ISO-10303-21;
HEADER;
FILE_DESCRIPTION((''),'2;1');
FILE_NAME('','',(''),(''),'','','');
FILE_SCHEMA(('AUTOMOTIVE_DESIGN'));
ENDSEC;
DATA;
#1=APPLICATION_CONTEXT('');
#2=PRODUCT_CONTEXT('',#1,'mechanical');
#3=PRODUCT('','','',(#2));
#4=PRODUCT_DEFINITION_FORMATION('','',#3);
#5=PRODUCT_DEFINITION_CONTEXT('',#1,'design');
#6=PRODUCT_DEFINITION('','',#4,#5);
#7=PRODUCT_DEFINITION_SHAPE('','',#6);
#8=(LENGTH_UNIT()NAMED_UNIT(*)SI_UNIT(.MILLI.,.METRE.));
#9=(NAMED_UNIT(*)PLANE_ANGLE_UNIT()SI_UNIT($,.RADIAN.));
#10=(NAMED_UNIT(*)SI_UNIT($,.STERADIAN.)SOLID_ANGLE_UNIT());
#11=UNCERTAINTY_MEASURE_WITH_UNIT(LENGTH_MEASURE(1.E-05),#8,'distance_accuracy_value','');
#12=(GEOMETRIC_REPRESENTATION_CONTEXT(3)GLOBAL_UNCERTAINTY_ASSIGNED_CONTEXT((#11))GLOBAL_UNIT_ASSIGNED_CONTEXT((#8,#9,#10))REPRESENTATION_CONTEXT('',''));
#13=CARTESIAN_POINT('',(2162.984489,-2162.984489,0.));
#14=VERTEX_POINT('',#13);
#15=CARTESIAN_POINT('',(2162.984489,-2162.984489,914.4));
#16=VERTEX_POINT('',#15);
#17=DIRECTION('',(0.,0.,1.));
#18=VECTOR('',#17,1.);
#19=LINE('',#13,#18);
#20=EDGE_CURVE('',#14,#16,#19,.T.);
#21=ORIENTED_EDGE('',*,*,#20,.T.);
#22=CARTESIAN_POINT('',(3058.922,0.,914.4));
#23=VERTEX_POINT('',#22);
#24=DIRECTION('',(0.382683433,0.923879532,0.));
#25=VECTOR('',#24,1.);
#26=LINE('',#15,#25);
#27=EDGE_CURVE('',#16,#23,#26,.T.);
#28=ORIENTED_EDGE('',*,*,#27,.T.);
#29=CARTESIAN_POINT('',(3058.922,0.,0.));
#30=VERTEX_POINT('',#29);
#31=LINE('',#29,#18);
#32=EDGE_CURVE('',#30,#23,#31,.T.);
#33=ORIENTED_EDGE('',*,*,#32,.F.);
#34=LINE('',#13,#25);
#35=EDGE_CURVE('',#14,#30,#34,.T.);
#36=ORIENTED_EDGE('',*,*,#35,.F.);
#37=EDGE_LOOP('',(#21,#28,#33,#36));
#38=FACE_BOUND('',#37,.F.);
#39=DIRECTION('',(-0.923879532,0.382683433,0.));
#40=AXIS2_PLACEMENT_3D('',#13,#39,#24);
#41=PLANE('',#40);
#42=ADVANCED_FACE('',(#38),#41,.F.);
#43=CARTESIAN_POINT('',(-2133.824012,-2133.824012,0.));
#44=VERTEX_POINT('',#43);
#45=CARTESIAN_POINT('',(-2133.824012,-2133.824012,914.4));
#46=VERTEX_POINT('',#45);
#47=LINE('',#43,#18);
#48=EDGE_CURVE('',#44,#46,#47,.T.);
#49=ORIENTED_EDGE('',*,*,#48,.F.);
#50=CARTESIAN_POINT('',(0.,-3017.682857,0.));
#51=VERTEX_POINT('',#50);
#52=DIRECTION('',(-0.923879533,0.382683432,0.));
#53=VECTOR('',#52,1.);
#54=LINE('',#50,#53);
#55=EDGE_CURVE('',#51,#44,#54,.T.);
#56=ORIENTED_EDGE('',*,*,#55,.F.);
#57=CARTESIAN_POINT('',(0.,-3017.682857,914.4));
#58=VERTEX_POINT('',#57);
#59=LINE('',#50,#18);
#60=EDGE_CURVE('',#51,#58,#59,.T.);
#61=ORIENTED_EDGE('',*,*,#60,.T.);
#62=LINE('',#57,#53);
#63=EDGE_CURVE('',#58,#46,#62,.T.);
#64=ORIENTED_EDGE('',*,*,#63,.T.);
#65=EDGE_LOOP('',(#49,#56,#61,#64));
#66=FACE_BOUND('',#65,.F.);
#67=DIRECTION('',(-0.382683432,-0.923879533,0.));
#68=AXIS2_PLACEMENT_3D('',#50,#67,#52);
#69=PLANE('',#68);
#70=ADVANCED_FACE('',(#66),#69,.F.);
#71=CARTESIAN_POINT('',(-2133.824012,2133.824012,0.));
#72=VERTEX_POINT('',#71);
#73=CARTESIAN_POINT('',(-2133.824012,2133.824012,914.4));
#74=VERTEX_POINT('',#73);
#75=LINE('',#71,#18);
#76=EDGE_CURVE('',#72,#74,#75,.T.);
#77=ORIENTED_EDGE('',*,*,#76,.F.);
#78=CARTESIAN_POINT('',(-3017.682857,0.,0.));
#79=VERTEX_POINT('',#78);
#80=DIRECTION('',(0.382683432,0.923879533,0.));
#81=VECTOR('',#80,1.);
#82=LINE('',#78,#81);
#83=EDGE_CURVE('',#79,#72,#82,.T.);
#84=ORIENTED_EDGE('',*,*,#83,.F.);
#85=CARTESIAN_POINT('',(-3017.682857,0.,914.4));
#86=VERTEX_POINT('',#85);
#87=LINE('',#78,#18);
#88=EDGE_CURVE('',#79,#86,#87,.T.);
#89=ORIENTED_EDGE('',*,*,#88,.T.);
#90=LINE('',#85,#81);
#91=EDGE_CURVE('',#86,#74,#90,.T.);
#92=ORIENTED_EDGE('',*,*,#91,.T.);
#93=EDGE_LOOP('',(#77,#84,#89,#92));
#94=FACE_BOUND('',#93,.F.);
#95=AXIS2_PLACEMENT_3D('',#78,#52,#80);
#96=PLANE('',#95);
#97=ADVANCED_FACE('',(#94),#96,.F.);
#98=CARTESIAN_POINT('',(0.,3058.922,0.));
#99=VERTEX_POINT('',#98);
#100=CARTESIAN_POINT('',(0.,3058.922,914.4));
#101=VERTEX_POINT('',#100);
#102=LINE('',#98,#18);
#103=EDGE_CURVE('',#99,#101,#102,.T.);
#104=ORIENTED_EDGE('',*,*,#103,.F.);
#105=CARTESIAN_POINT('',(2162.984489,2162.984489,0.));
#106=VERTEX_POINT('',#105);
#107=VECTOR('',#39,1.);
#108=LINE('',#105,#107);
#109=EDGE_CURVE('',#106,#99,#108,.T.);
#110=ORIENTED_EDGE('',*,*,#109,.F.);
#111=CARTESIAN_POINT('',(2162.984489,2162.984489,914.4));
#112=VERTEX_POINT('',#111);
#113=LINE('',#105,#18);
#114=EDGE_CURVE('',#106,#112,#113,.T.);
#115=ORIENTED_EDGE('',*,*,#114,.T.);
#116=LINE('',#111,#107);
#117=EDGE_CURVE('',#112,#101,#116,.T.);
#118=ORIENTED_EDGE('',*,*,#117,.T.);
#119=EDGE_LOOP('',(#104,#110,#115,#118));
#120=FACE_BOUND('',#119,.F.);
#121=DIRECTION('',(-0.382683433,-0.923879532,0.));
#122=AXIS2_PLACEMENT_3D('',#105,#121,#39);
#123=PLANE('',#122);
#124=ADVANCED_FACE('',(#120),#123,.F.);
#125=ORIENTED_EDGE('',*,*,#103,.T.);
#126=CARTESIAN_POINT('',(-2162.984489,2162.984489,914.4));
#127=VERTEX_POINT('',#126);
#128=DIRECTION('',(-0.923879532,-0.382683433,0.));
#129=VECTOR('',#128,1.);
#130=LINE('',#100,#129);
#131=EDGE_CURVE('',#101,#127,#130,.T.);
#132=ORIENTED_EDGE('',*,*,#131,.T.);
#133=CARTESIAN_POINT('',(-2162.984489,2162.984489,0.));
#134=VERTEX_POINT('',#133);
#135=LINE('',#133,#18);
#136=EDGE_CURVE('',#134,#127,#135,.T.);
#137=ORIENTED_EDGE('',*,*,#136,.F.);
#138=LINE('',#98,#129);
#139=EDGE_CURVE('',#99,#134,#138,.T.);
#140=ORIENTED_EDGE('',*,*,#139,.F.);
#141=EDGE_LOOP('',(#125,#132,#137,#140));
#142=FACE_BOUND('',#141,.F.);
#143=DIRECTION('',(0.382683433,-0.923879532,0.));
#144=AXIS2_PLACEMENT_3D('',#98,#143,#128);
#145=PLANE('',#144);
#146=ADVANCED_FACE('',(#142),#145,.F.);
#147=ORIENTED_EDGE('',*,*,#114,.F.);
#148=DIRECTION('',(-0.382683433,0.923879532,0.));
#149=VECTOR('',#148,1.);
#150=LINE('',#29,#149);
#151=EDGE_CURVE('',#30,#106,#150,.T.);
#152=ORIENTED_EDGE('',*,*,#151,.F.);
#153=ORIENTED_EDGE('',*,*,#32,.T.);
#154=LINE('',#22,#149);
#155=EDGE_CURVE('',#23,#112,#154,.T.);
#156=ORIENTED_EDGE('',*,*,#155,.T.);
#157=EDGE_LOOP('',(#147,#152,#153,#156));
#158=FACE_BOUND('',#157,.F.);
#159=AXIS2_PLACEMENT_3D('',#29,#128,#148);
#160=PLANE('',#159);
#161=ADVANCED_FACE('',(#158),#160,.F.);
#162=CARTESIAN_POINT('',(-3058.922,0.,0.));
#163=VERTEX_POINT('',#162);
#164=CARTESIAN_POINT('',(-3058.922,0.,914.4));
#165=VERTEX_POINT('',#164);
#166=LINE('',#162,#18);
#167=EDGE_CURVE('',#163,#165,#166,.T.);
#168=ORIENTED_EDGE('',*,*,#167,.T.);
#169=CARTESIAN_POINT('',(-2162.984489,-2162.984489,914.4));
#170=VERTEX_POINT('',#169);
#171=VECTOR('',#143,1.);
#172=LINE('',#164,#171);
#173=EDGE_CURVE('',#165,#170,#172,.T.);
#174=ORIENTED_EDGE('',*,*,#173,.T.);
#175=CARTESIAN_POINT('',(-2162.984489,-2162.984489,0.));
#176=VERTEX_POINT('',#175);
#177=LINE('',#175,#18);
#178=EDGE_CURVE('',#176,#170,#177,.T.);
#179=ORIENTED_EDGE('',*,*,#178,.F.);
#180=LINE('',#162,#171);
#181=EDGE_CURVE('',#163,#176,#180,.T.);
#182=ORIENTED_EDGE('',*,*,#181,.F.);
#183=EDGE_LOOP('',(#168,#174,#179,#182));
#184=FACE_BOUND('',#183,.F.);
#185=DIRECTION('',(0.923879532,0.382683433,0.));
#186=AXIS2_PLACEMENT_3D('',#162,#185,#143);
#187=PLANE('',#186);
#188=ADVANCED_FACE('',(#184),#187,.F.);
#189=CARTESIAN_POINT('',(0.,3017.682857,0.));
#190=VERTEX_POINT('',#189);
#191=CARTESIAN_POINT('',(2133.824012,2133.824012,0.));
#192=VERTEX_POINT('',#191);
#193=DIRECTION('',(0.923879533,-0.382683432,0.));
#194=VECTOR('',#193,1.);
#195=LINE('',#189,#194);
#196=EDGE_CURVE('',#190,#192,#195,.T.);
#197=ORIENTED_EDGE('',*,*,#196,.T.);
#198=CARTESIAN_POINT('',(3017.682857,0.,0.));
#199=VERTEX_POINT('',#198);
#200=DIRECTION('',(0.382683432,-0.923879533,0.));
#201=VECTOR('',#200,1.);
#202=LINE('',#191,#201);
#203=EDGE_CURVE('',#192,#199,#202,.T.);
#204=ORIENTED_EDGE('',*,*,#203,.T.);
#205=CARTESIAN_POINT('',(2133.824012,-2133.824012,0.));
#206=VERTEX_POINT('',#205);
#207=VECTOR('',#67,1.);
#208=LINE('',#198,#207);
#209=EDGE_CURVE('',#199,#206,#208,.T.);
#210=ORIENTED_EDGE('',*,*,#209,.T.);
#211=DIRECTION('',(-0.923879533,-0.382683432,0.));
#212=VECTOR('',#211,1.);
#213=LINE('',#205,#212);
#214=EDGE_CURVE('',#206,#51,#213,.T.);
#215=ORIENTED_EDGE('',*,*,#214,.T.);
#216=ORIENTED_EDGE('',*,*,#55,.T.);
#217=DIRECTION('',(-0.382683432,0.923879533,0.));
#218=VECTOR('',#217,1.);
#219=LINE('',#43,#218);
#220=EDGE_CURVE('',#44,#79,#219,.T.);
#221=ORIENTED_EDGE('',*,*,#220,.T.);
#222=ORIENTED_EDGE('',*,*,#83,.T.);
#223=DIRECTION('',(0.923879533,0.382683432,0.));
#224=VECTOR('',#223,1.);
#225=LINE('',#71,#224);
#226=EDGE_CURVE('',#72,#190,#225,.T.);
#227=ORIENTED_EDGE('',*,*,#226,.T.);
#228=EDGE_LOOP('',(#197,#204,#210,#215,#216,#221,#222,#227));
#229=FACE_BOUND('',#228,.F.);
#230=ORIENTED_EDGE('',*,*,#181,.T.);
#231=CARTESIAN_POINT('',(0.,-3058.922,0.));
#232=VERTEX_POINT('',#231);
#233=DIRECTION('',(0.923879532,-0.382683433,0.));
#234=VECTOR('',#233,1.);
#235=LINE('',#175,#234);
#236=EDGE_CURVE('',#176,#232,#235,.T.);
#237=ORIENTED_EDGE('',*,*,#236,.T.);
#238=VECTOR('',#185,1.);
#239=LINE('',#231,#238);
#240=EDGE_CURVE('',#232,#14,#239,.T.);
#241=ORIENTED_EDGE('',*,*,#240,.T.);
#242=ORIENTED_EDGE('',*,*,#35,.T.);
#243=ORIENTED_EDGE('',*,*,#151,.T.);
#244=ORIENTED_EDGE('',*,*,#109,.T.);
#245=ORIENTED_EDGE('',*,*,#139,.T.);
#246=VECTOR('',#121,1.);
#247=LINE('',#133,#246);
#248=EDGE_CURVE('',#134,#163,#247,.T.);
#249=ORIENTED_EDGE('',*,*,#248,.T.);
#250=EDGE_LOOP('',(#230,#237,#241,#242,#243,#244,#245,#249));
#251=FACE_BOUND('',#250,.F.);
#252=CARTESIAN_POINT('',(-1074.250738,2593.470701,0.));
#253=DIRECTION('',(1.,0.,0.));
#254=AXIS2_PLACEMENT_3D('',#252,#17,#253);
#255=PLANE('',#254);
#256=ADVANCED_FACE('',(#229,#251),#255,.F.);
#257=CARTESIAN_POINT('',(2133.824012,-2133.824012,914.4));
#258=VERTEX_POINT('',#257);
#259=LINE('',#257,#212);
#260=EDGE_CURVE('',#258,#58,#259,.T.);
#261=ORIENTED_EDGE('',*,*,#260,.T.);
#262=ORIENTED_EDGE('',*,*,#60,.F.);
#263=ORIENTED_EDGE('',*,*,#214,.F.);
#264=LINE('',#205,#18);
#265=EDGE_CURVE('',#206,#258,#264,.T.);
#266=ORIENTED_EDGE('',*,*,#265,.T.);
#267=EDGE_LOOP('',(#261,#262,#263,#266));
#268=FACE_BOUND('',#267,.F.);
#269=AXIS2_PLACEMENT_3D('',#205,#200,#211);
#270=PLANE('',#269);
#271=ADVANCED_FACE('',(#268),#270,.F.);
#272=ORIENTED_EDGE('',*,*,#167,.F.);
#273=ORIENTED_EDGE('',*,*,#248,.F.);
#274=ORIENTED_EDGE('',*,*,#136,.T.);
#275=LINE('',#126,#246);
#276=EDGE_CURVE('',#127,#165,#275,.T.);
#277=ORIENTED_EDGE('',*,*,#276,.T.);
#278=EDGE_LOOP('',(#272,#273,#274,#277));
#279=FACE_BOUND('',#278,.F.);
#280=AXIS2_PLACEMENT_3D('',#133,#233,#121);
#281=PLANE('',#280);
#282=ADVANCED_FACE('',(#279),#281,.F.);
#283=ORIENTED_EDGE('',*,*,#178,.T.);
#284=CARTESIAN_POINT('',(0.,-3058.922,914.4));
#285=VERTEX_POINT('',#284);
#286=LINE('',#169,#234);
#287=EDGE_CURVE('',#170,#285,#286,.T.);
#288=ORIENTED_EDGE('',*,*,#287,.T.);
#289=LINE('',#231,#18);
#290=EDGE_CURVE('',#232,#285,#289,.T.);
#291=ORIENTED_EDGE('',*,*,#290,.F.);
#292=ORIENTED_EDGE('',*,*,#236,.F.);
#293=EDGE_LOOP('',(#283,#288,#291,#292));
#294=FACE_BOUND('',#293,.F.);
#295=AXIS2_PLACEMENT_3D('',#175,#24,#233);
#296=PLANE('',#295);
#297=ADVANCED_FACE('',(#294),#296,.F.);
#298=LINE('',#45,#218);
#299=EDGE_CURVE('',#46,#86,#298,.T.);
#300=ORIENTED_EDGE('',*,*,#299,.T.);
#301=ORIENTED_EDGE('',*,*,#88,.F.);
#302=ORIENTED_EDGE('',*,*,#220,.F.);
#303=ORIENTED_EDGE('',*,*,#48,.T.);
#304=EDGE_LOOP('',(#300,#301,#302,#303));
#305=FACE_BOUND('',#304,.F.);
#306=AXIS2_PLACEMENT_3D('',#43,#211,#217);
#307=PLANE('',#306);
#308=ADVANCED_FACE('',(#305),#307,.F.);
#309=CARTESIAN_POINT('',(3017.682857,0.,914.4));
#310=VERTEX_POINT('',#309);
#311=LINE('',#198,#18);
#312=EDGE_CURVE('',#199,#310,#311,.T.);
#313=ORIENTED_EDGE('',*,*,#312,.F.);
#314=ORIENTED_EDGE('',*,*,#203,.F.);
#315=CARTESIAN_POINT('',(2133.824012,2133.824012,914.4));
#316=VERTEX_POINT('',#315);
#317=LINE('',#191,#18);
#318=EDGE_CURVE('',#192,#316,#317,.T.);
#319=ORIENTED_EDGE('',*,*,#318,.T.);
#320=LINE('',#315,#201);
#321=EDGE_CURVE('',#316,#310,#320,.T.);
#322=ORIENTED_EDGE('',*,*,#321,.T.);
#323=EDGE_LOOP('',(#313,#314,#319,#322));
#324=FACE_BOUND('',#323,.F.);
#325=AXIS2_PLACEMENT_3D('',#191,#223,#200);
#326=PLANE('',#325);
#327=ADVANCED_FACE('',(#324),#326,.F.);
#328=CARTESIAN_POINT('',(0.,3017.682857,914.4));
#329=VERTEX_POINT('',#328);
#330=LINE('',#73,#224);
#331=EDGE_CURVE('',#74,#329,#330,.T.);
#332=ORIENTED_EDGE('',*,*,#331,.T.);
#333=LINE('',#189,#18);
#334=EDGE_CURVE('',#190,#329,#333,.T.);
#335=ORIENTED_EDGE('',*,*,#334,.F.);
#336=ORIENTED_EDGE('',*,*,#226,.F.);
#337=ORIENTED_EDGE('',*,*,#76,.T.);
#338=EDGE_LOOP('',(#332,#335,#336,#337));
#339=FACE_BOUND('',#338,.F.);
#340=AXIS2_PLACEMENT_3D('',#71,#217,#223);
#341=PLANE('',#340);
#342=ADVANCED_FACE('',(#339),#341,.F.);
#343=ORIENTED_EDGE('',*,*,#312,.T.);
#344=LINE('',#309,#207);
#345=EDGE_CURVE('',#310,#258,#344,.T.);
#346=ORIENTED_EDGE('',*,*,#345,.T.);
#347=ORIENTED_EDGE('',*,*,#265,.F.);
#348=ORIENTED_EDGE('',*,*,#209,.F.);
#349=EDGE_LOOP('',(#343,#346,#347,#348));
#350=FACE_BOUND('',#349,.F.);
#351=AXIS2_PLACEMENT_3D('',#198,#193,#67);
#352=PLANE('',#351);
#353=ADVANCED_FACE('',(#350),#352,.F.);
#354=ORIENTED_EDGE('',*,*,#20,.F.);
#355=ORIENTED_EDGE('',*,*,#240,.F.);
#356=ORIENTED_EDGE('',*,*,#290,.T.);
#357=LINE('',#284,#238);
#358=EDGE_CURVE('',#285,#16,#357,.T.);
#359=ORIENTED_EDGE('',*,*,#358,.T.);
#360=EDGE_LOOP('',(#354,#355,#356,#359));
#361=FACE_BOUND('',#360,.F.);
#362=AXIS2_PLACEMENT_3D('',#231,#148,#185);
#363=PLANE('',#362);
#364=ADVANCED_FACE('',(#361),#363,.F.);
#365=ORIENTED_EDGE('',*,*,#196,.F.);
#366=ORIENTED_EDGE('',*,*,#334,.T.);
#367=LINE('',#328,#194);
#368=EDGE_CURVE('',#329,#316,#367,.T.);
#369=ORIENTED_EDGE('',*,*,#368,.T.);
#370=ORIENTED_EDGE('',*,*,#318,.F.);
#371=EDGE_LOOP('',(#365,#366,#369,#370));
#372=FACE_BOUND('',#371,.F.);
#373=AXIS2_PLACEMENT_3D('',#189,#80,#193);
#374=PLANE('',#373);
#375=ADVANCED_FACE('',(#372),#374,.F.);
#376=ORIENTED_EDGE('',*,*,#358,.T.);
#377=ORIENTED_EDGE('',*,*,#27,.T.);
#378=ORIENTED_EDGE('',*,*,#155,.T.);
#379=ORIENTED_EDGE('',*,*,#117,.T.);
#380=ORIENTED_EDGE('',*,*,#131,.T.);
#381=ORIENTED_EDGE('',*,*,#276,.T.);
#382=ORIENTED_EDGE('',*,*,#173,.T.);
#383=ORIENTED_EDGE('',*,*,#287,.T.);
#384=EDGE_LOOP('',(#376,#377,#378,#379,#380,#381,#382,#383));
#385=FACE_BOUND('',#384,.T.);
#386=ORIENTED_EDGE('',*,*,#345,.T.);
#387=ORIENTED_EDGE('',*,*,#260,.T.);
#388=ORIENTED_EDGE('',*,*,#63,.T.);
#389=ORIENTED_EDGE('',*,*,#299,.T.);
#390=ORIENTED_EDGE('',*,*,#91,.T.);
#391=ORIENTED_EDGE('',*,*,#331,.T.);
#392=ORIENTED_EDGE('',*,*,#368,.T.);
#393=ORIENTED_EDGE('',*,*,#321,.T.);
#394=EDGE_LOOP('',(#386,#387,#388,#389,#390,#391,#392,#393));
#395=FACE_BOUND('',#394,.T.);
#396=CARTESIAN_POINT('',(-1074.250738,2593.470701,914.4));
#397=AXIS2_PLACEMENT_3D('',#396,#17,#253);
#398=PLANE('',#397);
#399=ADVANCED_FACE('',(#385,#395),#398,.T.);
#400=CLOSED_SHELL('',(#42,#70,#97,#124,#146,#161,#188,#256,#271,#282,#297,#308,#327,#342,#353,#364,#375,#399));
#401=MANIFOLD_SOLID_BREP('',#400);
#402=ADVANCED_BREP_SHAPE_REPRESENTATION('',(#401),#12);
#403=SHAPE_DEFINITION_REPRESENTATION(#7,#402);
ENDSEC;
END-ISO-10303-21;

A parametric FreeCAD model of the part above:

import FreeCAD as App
import Part
import Sketcher

V = App.Vector
Q = App.Units.Quantity


def add_polygon(sketch, points):
    """Adds a closed chain of lines whose ends are joined by coincident constraints."""
    first, n = sketch.GeometryCount, len(points)
    for a, b in zip(points, points[1:] + points[:1]):
        sketch.addGeometry(Part.LineSegment(App.Vector(*a, 0), App.Vector(*b, 0)), False)
    for i in range(n):
        sketch.addConstraint(Sketcher.Constraint("Coincident", first + i, 2, first + (i + 1) % n, 1))

doc = App.newDocument("Part")
body = doc.addObject("PartDesign::Body", "Body")

sketch1 = body.newObject("Sketcher::SketchObject", "Sketch")
sketch1.AttachmentSupport = (doc.getObject("XY_Plane"), [""])
sketch1.MapMode = "FlatFace"
add_polygon(sketch1, [(0, 3059), (-2163, 2163), (-3059, 0), (-2163, -2163), (0, -3059), (2163, -2163), (3059, 0), (2163, 2163)])
add_polygon(sketch1, [(-2134, 2134), (0, 3018), (2134, 2134), (3018, 0), (2134, -2134), (0, -3018), (-2134, -2134), (-3018, 0)])
sketch1.addConstraint([
    Sketcher.Constraint("Symmetric", 0, 2, 4, 2, -1, 1),
    Sketcher.Constraint("Symmetric", 1, 2, 5, 2, -1, 1),
    Sketcher.Constraint("Symmetric", 2, 2, 6, 2, -1, 1),
    Sketcher.Constraint("Symmetric", 3, 2, 7, 2, -1, 1),
    Sketcher.Constraint("Symmetric", 8, 2, 12, 2, -1, 1),
    Sketcher.Constraint("Symmetric", 9, 2, 13, 2, -1, 1),
    Sketcher.Constraint("Symmetric", 10, 2, 14, 2, -1, 1),
    Sketcher.Constraint("Symmetric", 11, 2, 15, 2, -1, 1),
    Sketcher.Constraint("Symmetric", 2, 2, 4, 2, -2),
    Sketcher.Constraint("Symmetric", 11, 2, 13, 2, -2),
    Sketcher.Constraint("PointOnObject", 1, 2, -1),
    Sketcher.Constraint("PointOnObject", 3, 2, -2),
    Sketcher.Constraint("PointOnObject", 8, 2, -2),
    Sketcher.Constraint("PointOnObject", 10, 2, -1),
    Sketcher.Constraint("Perpendicular", 0, 2),
    Sketcher.Constraint("Perpendicular", 6, 8),
    Sketcher.Constraint("Perpendicular", 8, 10),
    Sketcher.Constraint("Equal", 0, 1),
    Sketcher.Constraint("Equal", 9, 10),
    Sketcher.Constraint("Angle", 0, Q("-157.5 deg")),
    Sketcher.Constraint("DistanceX", 1, 2, -1, 1, Q("120.43 in")),
    Sketcher.Constraint("DistanceX", 0, 2, 9, 2, Q("4296.808501 mm")),
])
pad1 = body.newObject("PartDesign::Pad", "Pad")
pad1.Profile = sketch1
pad1.Length = Q("36 in")

doc.recompute()
